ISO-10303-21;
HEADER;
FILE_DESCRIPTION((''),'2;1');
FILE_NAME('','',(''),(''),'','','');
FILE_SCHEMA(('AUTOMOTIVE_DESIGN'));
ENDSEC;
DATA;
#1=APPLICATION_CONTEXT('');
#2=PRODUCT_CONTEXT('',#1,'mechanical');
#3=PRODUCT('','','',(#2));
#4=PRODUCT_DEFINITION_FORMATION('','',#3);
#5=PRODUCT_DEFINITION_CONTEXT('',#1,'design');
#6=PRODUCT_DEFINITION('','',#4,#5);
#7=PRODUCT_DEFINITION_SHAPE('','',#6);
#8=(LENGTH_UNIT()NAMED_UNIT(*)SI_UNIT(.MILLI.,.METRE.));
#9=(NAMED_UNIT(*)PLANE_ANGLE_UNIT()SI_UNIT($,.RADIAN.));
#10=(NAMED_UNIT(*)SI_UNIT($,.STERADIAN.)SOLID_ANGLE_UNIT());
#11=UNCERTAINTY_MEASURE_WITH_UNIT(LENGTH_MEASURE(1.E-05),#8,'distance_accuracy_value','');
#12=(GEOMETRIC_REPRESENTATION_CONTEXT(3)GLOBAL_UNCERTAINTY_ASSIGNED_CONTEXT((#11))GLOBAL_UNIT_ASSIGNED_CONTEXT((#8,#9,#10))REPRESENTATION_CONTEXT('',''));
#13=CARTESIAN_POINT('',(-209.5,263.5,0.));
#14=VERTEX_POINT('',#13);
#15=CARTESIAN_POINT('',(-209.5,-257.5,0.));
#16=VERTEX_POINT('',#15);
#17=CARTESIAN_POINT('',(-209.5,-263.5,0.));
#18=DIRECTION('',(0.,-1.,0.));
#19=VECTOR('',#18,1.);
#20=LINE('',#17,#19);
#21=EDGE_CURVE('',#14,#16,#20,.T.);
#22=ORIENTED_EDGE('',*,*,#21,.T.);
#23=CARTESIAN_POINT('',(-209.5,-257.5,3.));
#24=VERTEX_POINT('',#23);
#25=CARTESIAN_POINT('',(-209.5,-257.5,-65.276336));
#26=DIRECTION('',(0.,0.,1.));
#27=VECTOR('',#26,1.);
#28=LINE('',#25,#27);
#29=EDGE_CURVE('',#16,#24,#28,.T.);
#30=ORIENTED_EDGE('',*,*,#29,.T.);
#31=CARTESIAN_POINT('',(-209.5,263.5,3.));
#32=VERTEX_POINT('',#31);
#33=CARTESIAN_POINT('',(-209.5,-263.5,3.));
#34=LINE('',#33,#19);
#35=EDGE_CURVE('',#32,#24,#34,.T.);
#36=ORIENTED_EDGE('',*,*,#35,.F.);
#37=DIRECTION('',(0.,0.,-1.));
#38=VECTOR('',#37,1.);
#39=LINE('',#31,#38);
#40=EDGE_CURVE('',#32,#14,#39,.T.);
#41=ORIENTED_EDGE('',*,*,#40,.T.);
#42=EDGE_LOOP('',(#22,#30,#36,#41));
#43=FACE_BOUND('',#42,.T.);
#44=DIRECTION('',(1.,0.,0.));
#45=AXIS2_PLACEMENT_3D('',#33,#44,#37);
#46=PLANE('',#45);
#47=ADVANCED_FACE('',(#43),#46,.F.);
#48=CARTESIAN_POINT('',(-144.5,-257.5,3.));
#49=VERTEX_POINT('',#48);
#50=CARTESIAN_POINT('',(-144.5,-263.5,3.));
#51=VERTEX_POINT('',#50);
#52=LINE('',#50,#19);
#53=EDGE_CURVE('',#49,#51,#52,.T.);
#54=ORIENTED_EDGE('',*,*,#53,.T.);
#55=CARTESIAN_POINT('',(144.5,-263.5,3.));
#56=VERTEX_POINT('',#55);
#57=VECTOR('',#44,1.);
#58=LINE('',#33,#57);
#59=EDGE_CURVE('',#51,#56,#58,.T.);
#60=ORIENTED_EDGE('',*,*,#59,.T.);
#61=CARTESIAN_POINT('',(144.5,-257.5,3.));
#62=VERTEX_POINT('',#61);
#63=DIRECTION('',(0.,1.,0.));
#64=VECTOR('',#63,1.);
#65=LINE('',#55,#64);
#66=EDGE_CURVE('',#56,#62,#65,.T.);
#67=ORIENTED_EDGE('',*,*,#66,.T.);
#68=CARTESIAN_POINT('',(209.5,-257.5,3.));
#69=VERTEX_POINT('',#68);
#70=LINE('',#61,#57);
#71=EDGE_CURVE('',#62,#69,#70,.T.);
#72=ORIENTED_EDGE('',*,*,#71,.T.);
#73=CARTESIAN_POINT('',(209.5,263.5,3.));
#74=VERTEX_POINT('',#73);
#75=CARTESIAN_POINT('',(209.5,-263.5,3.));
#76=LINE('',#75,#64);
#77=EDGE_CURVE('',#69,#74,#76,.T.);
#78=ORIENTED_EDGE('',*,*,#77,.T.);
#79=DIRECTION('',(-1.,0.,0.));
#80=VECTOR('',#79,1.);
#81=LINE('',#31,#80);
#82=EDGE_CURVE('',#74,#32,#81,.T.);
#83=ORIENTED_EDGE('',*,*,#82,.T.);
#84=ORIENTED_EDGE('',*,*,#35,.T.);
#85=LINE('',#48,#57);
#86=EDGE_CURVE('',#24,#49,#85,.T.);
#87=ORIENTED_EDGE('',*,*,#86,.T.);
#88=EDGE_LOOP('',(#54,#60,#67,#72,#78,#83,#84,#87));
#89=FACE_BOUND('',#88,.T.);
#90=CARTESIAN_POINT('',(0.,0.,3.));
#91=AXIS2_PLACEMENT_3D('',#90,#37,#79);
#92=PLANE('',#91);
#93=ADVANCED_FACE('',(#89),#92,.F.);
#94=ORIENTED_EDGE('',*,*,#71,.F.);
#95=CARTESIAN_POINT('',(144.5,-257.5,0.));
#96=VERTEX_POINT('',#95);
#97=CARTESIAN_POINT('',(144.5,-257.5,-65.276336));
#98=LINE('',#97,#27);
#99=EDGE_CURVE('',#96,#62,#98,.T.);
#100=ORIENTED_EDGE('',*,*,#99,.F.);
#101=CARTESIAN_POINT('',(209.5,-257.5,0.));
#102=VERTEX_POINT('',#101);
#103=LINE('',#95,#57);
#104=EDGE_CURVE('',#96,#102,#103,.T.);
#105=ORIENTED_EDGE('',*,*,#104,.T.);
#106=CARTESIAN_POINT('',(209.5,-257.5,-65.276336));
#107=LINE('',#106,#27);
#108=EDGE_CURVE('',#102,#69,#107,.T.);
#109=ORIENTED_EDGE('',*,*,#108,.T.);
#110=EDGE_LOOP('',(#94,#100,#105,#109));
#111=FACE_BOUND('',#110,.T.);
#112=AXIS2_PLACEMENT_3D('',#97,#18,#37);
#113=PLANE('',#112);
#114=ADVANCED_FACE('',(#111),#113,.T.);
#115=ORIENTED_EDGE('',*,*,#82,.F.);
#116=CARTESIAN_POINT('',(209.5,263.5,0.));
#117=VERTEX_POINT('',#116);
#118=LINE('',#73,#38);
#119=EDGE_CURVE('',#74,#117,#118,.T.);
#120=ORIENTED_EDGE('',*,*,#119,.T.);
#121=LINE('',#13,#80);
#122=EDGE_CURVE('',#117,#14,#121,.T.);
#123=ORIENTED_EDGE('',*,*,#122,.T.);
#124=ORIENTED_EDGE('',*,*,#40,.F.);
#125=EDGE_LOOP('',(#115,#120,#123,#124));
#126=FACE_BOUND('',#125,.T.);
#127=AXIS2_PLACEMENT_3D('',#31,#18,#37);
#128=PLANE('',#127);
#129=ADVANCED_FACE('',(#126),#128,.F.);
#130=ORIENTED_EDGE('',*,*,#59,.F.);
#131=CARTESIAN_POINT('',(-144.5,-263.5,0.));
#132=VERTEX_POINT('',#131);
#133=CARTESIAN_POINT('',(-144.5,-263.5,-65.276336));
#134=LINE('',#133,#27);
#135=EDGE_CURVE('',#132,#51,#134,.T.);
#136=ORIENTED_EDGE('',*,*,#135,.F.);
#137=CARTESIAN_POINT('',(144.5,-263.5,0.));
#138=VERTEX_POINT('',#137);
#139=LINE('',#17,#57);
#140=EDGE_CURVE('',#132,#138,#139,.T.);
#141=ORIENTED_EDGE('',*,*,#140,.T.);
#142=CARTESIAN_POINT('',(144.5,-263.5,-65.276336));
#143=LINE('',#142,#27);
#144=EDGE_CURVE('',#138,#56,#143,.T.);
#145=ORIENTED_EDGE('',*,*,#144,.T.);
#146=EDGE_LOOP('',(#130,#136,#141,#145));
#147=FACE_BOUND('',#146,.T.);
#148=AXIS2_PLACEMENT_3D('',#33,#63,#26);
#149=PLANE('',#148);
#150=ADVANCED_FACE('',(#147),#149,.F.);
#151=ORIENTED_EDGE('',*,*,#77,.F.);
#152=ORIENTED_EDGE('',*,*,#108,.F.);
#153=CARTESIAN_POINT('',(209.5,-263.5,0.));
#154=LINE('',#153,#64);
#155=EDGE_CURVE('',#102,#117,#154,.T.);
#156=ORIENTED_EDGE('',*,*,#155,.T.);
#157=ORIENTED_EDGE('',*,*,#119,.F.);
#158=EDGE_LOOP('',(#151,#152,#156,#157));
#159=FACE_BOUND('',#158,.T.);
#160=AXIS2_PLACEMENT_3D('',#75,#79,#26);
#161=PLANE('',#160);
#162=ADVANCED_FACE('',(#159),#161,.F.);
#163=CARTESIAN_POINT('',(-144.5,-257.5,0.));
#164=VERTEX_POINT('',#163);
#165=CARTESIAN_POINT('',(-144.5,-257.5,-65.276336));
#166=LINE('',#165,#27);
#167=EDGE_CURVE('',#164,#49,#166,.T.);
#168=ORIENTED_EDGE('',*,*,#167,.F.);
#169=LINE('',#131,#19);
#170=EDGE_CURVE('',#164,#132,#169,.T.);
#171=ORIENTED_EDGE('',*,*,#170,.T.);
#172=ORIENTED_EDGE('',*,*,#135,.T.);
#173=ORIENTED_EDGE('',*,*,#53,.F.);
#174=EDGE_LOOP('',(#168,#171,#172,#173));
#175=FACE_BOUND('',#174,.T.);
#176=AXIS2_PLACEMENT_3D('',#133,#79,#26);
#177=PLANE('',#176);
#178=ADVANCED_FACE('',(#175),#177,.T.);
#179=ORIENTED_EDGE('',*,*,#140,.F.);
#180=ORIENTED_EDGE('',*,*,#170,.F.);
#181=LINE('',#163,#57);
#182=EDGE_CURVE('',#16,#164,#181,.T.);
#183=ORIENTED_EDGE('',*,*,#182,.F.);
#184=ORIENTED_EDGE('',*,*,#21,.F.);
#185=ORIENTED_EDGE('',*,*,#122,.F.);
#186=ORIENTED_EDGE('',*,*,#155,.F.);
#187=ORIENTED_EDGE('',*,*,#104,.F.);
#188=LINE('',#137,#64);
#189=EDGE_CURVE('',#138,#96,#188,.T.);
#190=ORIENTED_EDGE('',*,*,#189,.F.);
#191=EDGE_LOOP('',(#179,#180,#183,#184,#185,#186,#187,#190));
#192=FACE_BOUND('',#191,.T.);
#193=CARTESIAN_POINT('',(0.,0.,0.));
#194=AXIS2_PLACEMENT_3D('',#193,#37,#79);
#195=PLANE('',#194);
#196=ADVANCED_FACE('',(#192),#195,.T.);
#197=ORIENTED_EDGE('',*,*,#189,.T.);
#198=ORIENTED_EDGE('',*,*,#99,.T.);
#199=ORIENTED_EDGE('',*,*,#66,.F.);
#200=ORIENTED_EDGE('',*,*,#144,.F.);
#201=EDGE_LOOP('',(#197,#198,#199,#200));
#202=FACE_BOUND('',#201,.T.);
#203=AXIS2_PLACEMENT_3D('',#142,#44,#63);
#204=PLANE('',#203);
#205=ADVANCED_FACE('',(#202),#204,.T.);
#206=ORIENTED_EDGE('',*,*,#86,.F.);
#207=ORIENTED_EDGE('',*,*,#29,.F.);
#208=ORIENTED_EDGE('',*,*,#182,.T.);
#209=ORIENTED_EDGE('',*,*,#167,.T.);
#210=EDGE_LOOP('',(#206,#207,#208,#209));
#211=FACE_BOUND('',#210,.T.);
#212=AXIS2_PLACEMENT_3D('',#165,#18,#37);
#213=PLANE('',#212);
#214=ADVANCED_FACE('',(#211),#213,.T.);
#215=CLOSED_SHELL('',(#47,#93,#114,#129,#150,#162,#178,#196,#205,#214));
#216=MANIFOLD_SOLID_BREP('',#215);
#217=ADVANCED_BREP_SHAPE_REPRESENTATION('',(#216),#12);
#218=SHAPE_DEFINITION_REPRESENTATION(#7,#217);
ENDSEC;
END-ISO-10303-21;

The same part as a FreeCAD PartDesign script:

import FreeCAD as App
import Part
import Sketcher

doc = App.newDocument("Part")
body = doc.addObject("PartDesign::Body", "Body")

# Sketch on XY plane
sketch1 = doc.addObject("Sketcher::SketchObject", "Sketch")
body.addObject(sketch1)
sketch1.AttachmentSupport = (doc.XY_Plane, [""])
sketch1.MapMode = "FlatFace"
sketch1.addGeometry([
    Part.LineSegment(App.Vector(-209.5, 263.5, 0), App.Vector(-209.5, -263.5, 0)),
    Part.LineSegment(App.Vector(-209.5, -263.5, 0), App.Vector(209.5, -263.5, 0)),
    Part.LineSegment(App.Vector(209.5, -263.5, 0), App.Vector(209.5, 263.5, 0)),
    Part.LineSegment(App.Vector(209.5, 263.5, 0), App.Vector(-209.5, 263.5, 0)),
], False)
sketch1.addConstraint([
    Sketcher.Constraint("Coincident", 0, 2, 1, 1),
    Sketcher.Constraint("Coincident", 1, 2, 2, 1),
    Sketcher.Constraint("Coincident", 2, 2, 3, 1),
    Sketcher.Constraint("Coincident", 3, 2, 0, 1),
    Sketcher.Constraint("Vertical", 0),
    Sketcher.Constraint("Horizontal", 1),
    Sketcher.Constraint("Vertical", 2),
    Sketcher.Constraint("Horizontal", 3),
    Sketcher.Constraint("Symmetric", 0, 2, 2, 2, -1, 1),
    Sketcher.Constraint("DistanceX", 1, 1, 1, 2, 419.0),
    Sketcher.Constraint("DistanceY", 0, 2, 0, 1, 527.0),
])
pad1 = doc.addObject("PartDesign::Pad", "Pad")
body.addObject(pad1)
pad1.Profile = sketch1
pad1.Length = 3

# Sketch on XY plane
sketch2 = doc.addObject("Sketcher::SketchObject", "Sketch001")
body.addObject(sketch2)
sketch2.AttachmentSupport = (doc.XY_Plane, [""])
sketch2.MapMode = "FlatFace"
sketch2.AttachmentOffset = App.Placement(App.Vector(0, 0, 3), App.Rotation())
sketch2.addGeometry([
    Part.LineSegment(App.Vector(209.5, -257.5, 0), App.Vector(209.5, -263.5, 0)),  # 0
    Part.LineSegment(App.Vector(209.5, -263.5, 0), App.Vector(144.5, -263.5, 0)),  # 1
    Part.LineSegment(App.Vector(144.5, -263.5, 0), App.Vector(144.5, -257.5, 0)),  # 2
    Part.LineSegment(App.Vector(144.5, -257.5, 0), App.Vector(209.5, -257.5, 0)),  # 3
    Part.LineSegment(App.Vector(-144.5, -257.5, 0), App.Vector(-144.5, -263.5, 0)),  # 4
    Part.LineSegment(App.Vector(-144.5, -263.5, 0), App.Vector(-209.5, -263.5, 0)),  # 5
    Part.LineSegment(App.Vector(-209.5, -263.5, 0), App.Vector(-209.5, -257.5, 0)),  # 6
    Part.LineSegment(App.Vector(-209.5, -257.5, 0), App.Vector(-144.5, -257.5, 0)),  # 7
], False)
sketch2.addConstraint([
    Sketcher.Constraint("Coincident", 0, 2, 1, 1),
    Sketcher.Constraint("Coincident", 1, 2, 2, 1),
    Sketcher.Constraint("Coincident", 2, 2, 3, 1),
    Sketcher.Constraint("Coincident", 3, 2, 0, 1),
    Sketcher.Constraint("Coincident", 4, 2, 5, 1),
    Sketcher.Constraint("Coincident", 5, 2, 6, 1),
    Sketcher.Constraint("Coincident", 6, 2, 7, 1),
    Sketcher.Constraint("Coincident", 7, 2, 4, 1),
    Sketcher.Constraint("Vertical", 0),
    Sketcher.Constraint("Horizontal", 1),
    Sketcher.Constraint("Vertical", 2),
    Sketcher.Constraint("Horizontal", 3),
    Sketcher.Constraint("Vertical", 4),
    Sketcher.Constraint("Horizontal", 5),
    Sketcher.Constraint("Vertical", 6),
    Sketcher.Constraint("Horizontal", 7),
    Sketcher.Constraint("Symmetric", 1, 2, 4, 2, -2),
    Sketcher.Constraint("Symmetric", 3, 2, 6, 2, -2),
    Sketcher.Constraint("DistanceX", 1, 2, 1, 1, 65.0),
    Sketcher.Constraint("DistanceY", 0, 2, 0, 1, 6.0),
    Sketcher.Constraint("DistanceX", 4, 2, 1, 2, 289.0),
    Sketcher.Constraint("DistanceY", 0, 2, -1, 1, 263.5),
])
pocket1 = doc.addObject("PartDesign::Pocket", "Pocket")
body.addObject(pocket1)
pocket1.Profile = sketch2
pocket1.Length = 3

doc.recompute()
